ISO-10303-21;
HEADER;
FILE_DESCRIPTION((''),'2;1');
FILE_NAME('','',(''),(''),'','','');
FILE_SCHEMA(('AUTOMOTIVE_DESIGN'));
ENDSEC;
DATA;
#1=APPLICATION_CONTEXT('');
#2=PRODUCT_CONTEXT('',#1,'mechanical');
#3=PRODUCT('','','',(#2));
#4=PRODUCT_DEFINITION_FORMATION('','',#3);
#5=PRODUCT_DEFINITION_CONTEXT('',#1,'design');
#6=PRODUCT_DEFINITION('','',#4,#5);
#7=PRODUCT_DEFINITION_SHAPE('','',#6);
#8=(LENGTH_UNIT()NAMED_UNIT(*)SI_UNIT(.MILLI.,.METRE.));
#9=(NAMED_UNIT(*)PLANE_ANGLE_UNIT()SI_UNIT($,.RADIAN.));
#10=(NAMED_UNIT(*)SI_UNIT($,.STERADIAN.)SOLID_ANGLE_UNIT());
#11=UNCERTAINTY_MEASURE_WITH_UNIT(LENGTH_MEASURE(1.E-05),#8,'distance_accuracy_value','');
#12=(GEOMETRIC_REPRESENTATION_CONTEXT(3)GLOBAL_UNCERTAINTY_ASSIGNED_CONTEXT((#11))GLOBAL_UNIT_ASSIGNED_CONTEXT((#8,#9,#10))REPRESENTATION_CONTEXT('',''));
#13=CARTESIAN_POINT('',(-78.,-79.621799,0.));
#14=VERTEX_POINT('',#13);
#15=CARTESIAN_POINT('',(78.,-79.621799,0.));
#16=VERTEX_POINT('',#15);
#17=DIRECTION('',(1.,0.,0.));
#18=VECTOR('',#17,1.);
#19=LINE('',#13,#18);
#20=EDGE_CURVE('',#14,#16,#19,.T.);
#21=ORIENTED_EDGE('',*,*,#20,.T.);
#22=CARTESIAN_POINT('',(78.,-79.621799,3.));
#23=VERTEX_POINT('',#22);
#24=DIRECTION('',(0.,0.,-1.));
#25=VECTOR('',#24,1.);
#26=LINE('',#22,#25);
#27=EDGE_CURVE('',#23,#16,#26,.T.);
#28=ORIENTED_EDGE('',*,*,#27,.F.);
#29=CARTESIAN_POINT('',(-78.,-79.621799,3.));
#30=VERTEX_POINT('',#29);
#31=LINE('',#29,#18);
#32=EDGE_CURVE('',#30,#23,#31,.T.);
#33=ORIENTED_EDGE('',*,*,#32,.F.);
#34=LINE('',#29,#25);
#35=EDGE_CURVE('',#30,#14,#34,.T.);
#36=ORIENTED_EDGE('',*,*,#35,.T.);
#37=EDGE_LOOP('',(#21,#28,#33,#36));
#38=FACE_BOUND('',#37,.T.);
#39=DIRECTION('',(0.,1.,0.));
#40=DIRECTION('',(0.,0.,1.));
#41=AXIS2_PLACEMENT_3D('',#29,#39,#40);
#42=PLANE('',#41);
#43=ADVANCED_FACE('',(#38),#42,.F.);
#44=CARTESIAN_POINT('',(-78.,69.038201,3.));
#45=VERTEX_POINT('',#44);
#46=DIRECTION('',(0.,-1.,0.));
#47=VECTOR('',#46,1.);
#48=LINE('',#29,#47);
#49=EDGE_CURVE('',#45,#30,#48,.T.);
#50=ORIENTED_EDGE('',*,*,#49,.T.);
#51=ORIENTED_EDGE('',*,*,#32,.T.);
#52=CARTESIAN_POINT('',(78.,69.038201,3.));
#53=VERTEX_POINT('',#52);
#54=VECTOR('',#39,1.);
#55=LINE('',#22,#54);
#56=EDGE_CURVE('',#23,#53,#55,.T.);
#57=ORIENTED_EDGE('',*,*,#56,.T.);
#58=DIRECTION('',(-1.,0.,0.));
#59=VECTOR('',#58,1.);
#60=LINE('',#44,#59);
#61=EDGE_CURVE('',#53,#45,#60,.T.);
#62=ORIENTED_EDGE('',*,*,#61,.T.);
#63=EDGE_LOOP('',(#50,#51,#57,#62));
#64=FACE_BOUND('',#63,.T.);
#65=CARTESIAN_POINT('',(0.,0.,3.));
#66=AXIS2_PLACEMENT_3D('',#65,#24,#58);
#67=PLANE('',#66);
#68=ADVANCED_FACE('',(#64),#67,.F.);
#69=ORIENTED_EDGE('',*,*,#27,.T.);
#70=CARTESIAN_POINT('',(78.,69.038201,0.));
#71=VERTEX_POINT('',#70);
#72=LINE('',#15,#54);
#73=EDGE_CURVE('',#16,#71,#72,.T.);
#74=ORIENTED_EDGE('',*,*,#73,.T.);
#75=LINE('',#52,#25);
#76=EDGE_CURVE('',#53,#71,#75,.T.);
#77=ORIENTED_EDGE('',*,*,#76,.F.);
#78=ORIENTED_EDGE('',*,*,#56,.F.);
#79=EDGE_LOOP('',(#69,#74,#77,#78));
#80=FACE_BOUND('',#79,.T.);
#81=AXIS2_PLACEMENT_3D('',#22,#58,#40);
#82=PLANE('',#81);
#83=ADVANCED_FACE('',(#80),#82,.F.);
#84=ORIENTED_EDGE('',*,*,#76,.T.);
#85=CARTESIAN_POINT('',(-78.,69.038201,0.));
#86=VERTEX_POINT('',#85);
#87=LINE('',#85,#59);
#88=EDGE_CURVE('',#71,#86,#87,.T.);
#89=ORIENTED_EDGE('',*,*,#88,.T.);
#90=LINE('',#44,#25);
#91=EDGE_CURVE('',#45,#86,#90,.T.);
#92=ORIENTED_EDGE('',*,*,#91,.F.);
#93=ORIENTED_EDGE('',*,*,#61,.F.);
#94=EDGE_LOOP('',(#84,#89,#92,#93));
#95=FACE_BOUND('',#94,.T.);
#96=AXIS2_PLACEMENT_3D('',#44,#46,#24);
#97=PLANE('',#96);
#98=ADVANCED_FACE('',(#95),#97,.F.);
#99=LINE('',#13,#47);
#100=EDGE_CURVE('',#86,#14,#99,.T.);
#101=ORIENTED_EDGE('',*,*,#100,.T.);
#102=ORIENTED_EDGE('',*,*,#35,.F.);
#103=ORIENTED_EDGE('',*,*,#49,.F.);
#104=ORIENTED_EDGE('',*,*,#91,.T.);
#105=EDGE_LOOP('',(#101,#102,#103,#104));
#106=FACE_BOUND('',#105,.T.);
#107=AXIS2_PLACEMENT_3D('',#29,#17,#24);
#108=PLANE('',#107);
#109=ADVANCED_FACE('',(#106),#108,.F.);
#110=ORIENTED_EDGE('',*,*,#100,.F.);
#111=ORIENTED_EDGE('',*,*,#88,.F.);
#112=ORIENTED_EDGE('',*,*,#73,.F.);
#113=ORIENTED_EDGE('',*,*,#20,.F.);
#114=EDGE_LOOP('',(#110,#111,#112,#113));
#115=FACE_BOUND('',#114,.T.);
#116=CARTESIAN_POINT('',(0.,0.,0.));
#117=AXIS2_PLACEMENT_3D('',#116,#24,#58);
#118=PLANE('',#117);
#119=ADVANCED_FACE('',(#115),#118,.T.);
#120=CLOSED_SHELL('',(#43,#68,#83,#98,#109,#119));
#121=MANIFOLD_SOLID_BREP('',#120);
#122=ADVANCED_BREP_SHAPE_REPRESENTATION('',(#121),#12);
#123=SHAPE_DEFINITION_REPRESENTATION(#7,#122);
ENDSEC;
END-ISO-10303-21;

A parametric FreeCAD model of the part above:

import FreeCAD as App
import Part
import Sketcher
Q = App.Units.Quantity

doc = App.newDocument("Part")
body = doc.addObject("PartDesign::Body", "Body")

# Sketch on XY plane
sketch1 = body.newObject("Sketcher::SketchObject", "Sketch")
sketch1.AttachmentSupport = (doc.getObject("XY_Plane"), [""])
sketch1.MapMode = "FlatFace"
sketch1.addGeometry([
    Part.LineSegment(App.Vector(-78, 69, 0), App.Vector(-78, -80, 0)),
    Part.LineSegment(App.Vector(-78, -80, 0), App.Vector(78, -80, 0)),
    Part.LineSegment(App.Vector(78, -80, 0), App.Vector(78, 69, 0)),
    Part.LineSegment(App.Vector(78, 69, 0), App.Vector(-78, 69, 0)),
], False)
sketch1.addConstraint([
    Sketcher.Constraint("Coincident", 0, 2, 1, 1),
    Sketcher.Constraint("Coincident", 1, 2, 2, 1),
    Sketcher.Constraint("Coincident", 2, 2, 3, 1),
    Sketcher.Constraint("Coincident", 3, 2, 0, 1),
    Sketcher.Constraint("Vertical", 0),
    Sketcher.Constraint("Horizontal", 1),
    Sketcher.Constraint("Vertical", 2),
    Sketcher.Constraint("Horizontal", 3),
    Sketcher.Constraint("DistanceX", 1, 1, 1, 2, Q("156 mm")),
    Sketcher.Constraint("DistanceX", 0, 2, -1, 1, Q("78 mm")),
    Sketcher.Constraint("DistanceY", 0, 2, 0, 1, Q("148.66 mm")),
    Sketcher.Constraint("DistanceY", 0, 2, -1, 1, Q("79.621799 mm")),
])
pad1 = body.newObject("PartDesign::Pad", "Pad")
pad1.Profile = sketch1
pad1.Length = 3

doc.recompute()
